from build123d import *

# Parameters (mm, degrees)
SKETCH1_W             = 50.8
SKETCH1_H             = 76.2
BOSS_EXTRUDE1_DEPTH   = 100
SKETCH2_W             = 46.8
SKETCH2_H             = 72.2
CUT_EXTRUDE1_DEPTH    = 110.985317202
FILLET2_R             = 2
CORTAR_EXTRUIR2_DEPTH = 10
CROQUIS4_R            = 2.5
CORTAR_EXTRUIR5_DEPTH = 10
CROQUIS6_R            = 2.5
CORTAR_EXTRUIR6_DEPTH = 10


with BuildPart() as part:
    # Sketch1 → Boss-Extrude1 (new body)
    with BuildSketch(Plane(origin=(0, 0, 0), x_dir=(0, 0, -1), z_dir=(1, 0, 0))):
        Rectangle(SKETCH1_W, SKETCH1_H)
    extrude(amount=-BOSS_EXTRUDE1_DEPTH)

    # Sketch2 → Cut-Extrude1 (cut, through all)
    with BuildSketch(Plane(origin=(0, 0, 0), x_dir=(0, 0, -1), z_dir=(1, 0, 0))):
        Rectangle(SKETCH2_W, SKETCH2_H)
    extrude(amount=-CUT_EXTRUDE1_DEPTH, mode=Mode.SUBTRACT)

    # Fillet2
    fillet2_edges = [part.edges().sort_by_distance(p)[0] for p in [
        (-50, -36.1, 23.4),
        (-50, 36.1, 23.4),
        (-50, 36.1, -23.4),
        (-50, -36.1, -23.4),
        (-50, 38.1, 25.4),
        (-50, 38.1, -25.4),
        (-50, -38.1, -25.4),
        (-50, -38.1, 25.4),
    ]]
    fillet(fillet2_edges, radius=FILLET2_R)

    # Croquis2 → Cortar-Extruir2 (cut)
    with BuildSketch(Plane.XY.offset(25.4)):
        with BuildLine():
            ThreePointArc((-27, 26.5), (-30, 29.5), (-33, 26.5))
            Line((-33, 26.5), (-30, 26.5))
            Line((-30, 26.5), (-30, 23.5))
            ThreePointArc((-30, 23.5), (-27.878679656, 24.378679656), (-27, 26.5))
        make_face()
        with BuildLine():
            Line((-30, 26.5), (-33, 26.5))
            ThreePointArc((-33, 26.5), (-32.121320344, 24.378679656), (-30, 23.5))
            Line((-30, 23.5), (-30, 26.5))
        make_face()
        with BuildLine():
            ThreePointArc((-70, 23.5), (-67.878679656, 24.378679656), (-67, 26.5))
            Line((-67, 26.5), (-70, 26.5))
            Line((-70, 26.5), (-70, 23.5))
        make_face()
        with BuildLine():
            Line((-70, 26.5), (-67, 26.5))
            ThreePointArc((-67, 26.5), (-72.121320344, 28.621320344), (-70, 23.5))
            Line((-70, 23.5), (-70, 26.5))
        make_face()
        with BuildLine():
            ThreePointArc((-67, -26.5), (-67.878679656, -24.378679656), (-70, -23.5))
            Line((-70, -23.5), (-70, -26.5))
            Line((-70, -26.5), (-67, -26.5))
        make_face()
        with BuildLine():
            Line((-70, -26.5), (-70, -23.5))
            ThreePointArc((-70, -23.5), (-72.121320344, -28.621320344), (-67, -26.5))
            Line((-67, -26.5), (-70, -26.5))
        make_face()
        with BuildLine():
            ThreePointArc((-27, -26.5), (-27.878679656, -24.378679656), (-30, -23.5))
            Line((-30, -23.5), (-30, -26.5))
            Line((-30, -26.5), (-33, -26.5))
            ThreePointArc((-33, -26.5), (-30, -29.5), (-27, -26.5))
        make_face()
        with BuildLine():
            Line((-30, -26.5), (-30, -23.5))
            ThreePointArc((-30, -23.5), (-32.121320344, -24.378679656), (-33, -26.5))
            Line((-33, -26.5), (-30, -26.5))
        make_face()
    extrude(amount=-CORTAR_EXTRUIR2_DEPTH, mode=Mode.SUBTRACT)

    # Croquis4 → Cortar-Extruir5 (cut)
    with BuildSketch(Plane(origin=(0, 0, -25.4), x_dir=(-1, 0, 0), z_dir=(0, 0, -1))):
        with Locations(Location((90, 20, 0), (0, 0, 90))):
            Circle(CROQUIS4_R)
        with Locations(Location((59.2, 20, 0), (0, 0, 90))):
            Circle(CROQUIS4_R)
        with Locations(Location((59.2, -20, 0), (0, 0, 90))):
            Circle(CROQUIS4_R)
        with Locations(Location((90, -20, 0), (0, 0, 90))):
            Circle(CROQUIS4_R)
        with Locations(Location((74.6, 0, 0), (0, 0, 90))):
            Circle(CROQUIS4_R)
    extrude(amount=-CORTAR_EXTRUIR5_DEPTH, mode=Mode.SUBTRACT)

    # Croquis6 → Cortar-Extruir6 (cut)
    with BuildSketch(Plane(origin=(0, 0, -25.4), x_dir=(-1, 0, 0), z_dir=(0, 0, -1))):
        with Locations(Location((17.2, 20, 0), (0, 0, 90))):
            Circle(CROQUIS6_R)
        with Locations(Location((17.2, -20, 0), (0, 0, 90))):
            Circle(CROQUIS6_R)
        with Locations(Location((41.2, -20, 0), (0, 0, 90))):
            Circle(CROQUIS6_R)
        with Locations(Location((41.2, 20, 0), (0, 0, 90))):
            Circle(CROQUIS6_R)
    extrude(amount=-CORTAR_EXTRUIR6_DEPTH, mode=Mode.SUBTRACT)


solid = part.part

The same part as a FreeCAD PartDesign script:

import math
import FreeCAD as App
import Part
import Sketcher
from FreeCAD import Vector


def edges_at(feature, points):
    """Names of the edges that pass closest to the given points."""
    edges = feature.Shape.Edges
    near = lambda p: min(range(len(edges)), key=lambda i: edges[i].distToShape(Part.Vertex(*p))[0])
    return sorted({f"Edge{near(p) + 1}" for p in points})

doc = App.newDocument("Part")
params = doc.addObject("Spreadsheet::Sheet", "Params")
for row, (alias, value) in enumerate([
    ("sketch1_width", "76.2 mm"),
    ("sketch1_height", "50.8 mm"),
    ("pad1_length", "100 mm"),
    ("sketch2_width", "72.2 mm"),
    ("sketch2_height", "46.8 mm"),
    ("fillet_radius", "2 mm"),
    ("sketch3_radius", "3 mm"),
    ("pocket2_length", "10 mm"),
    ("sketch4_diameter", "5 mm"),
    ("pocket3_length", "10 mm"),
    ("sketch5_diameter", "5 mm"),
    ("pocket4_length", "10 mm"),
], start=1):
    params.set(f"A{row}", alias)
    params.set(f"B{row}", "=" + value)
    params.setAlias(f"B{row}", alias)

body = doc.addObject("PartDesign::Body", "Body")

sketch1 = body.newObject("Sketcher::SketchObject", "Sketch")
sketch1.AttachmentSupport = (doc.getObject("YZ_Plane"), [""])
sketch1.MapMode = "FlatFace"
sketch1.addGeometry([
    Part.LineSegment(Vector(38, 25, 0), Vector(-38, 25, 0)),
    Part.LineSegment(Vector(-38, 25, 0), Vector(-38, -25, 0)),
    Part.LineSegment(Vector(-38, -25, 0), Vector(38, -25, 0)),
    Part.LineSegment(Vector(38, -25, 0), Vector(38, 25, 0)),
], False)
sketch1.addConstraint([
    Sketcher.Constraint("Coincident", 0, 2, 1, 1),
    Sketcher.Constraint("Coincident", 1, 2, 2, 1),
    Sketcher.Constraint("Coincident", 2, 2, 3, 1),
    Sketcher.Constraint("Coincident", 3, 2, 0, 1),
    Sketcher.Constraint("Horizontal", 0),
    Sketcher.Constraint("Vertical", 1),
    Sketcher.Constraint("Horizontal", 2),
    Sketcher.Constraint("Vertical", 3),
    Sketcher.Constraint("Symmetric", 0, 2, 2, 2, -1, 1),
    Sketcher.Constraint("DistanceX", 0, 2, 0, 1, 76.2),
    Sketcher.Constraint("DistanceY", 1, 2, 1, 1, 50.8),
])
sketch1.setExpression("Constraints[9]", "Params.sketch1_width")
sketch1.setExpression("Constraints[10]", "Params.sketch1_height")
pad1 = body.newObject("PartDesign::Pad", "Pad")
pad1.Profile = sketch1
pad1.setExpression("Length", "Params.pad1_length")
pad1.Reversed = True

sketch2 = body.newObject("Sketcher::SketchObject", "Sketch001")
sketch2.AttachmentSupport = (doc.getObject("YZ_Plane"), [""])
sketch2.MapMode = "FlatFace"
sketch2.addGeometry([
    Part.LineSegment(Vector(36, 23, 0), Vector(-36, 23, 0)),
    Part.LineSegment(Vector(-36, 23, 0), Vector(-36, -23, 0)),
    Part.LineSegment(Vector(-36, -23, 0), Vector(36, -23, 0)),
    Part.LineSegment(Vector(36, -23, 0), Vector(36, 23, 0)),
], False)
sketch2.addConstraint([
    Sketcher.Constraint("Coincident", 0, 2, 1, 1),
    Sketcher.Constraint("Coincident", 1, 2, 2, 1),
    Sketcher.Constraint("Coincident", 2, 2, 3, 1),
    Sketcher.Constraint("Coincident", 3, 2, 0, 1),
    Sketcher.Constraint("Horizontal", 0),
    Sketcher.Constraint("Vertical", 1),
    Sketcher.Constraint("Horizontal", 2),
    Sketcher.Constraint("Vertical", 3),
    Sketcher.Constraint("Symmetric", 0, 2, 2, 2, -1, 1),
    Sketcher.Constraint("DistanceX", 0, 2, 0, 1, 72.2),
    Sketcher.Constraint("DistanceY", 1, 2, 1, 1, 46.8),
])
sketch2.setExpression("Constraints[9]", "Params.sketch2_width")
sketch2.setExpression("Constraints[10]", "Params.sketch2_height")
pocket1 = body.newObject("PartDesign::Pocket", "Pocket")
pocket1.Profile = sketch2
pocket1.Type = "ThroughAll"
doc.recompute()

fillet = body.newObject("PartDesign::Fillet", "Fillet")
fillet.Base = (pocket1, edges_at(pocket1, [
    (-50, -36.1, 23.4),
    (-50, 36.1, 23.4),
    (-50, 36.1, -23.4),
    (-50, -36.1, -23.4),
    (-50, 38.1, 25.4),
    (-50, 38.1, -25.4),
    (-50, -38.1, -25.4),
    (-50, -38.1, 25.4),
]))
fillet.setExpression("Radius", "Params.fillet_radius")

sketch3 = body.newObject("Sketcher::SketchObject", "Sketch002")
sketch3.AttachmentSupport = (doc.getObject("XY_Plane"), [""])
sketch3.MapMode = "FlatFace"
sketch3.AttachmentOffset = App.Placement(Vector(0, 0, 25.4), App.Rotation())
sketch3.addGeometry([
    Part.ArcOfCircle(Part.Circle(Vector(-30, 26.5, 0), Vector(0, 0, 1), 3), math.radians(0), math.radians(180)),
    Part.ArcOfCircle(Part.Circle(Vector(-30, 26.5, 0), Vector(0, 0, 1), 3), math.radians(180), math.radians(270)),
    Part.ArcOfCircle(Part.Circle(Vector(-30, 26.5, 0), Vector(0, 0, 1), 3), math.radians(-90), math.radians(0)),
    Part.ArcOfCircle(Part.Circle(Vector(-70, 26.5, 0), Vector(0, 0, 1), 3), math.radians(-90), math.radians(0)),
    Part.ArcOfCircle(Part.Circle(Vector(-70, 26.5, 0), Vector(0, 0, 1), 3), math.radians(0), math.radians(270)),
    Part.ArcOfCircle(Part.Circle(Vector(-70, -26.5, 0), Vector(0, 0, 1), 3), math.radians(0), math.radians(90)),
    Part.ArcOfCircle(Part.Circle(Vector(-70, -26.5, 0), Vector(0, 0, 1), 3), math.radians(90), math.radians(360)),
    Part.ArcOfCircle(Part.Circle(Vector(-30, -26.5, 0), Vector(0, 0, 1), 3), math.radians(0), math.radians(90)),
    Part.ArcOfCircle(Part.Circle(Vector(-30, -26.5, 0), Vector(0, 0, 1), 3), math.radians(90), math.radians(180)),
    Part.ArcOfCircle(Part.Circle(Vector(-30, -26.5, 0), Vector(0, 0, 1), 3), math.radians(180), math.radians(360)),
], False)
sketch3.addConstraint([
    Sketcher.Constraint("Tangent", 0, 2, 1, 1),
    Sketcher.Constraint("Tangent", 1, 2, 2, 1),
    Sketcher.Constraint("Tangent", 2, 2, 0, 1),
    Sketcher.Constraint("Tangent", 3, 1, 4, 2),
    Sketcher.Constraint("Coincident", 4, 1, 3, 2),
    Sketcher.Constraint("Tangent", 5, 1, 6, 2),
    Sketcher.Constraint("Coincident", 6, 1, 5, 2),
    Sketcher.Constraint("Tangent", 7, 2, 8, 1),
    Sketcher.Constraint("Tangent", 8, 2, 9, 1),
    Sketcher.Constraint("Tangent", 9, 2, 7, 1),
    Sketcher.Constraint("Equal", 2, 3),
    Sketcher.Constraint("Equal", 4, 5),
    Sketcher.Constraint("Equal", 6, 7),
    Sketcher.Constraint("Symmetric", 3, 3, 5, 3, -1),
    Sketcher.Constraint("Symmetric", 0, 3, 7, 3, -1),
    Sketcher.Constraint("Horizontal", 2, 3, 3, 3),
    Sketcher.Constraint("Horizontal", 4, 3, 0, 2),
    Sketcher.Constraint("Horizontal", 0, 2, 2, 2),
    Sketcher.Constraint("Horizontal", 2, 2, 4, 1),
    Sketcher.Constraint("Horizontal", 9, 3, 5, 1),
    Sketcher.Constraint("Horizontal", 5, 1, 8, 2),
    Sketcher.Constraint("Horizontal", 8, 2, 9, 2),
    Sketcher.Constraint("Vertical", 9, 3, 1, 2),
    Sketcher.Constraint("Vertical", 6, 3, 3, 1),
    Sketcher.Constraint("Vertical", 3, 1, 6, 1),
    Sketcher.Constraint("Vertical", 1, 2, 7, 2),
    Sketcher.Constraint("Radius", 0, 3.0),
    Sketcher.Constraint("DistanceX", 0, 3, -1, 1, 30.0),
    Sketcher.Constraint("DistanceX", 3, 3, -1, 1, 70.0),
    Sketcher.Constraint("DistanceY", 5, 3, 3, 3, 53.0),
])
sketch3.setExpression("Constraints[26]", "Params.sketch3_radius")
pocket2 = body.newObject("PartDesign::Pocket", "Pocket001")
pocket2.Profile = sketch3
pocket2.setExpression("Length", "Params.pocket2_length")

sketch4 = body.newObject("Sketcher::SketchObject", "Sketch003")
sketch4.AttachmentSupport = (doc.getObject("XY_Plane"), [""])
sketch4.MapMode = "FlatFace"
sketch4.AttachmentOffset = App.Placement(Vector(0, 0, -25.4), App.Rotation())
sketch4.addGeometry([
    Part.Circle(Vector(-90, 20, 0), Vector(0, 0, 1), 2.5),
    Part.Circle(Vector(-59.2, 20, 0), Vector(0, 0, 1), 2.5),
    Part.Circle(Vector(-59.2, -20, 0), Vector(0, 0, 1), 2.5),
    Part.Circle(Vector(-90, -20, 0), Vector(0, 0, 1), 2.5),
    Part.Circle(Vector(-74.6, 0, 0), Vector(0, 0, 1), 2.5),
], False)
sketch4.addConstraint([
    Sketcher.Constraint("Equal", 0, 1),
    Sketcher.Constraint("Equal", 1, 2),
    Sketcher.Constraint("Equal", 2, 3),
    Sketcher.Constraint("Equal", 3, 4),
    Sketcher.Constraint("Symmetric", 1, 3, 2, 3, -1),
    Sketcher.Constraint("Symmetric", 0, 3, 3, 3, -1),
    Sketcher.Constraint("PointOnObject", 4, 3, -1),
    Sketcher.Constraint("Horizontal", 0, 3, 1, 3),
    Sketcher.Constraint("Diameter", 0, 5.0),
    Sketcher.Constraint("DistanceX", 0, 3, -1, 1, 90.0),
    Sketcher.Constraint("DistanceY", -1, 1, 0, 3, 20.0),
    Sketcher.Constraint("DistanceX", 1, 3, -1, 1, 59.2),
    Sketcher.Constraint("DistanceX", 4, 3, -1, 1, 74.6),
])
sketch4.setExpression("Constraints[8]", "Params.sketch4_diameter")
pocket3 = body.newObject("PartDesign::Pocket", "Pocket002")
pocket3.Profile = sketch4
pocket3.setExpression("Length", "Params.pocket3_length")
pocket3.Reversed = True

sketch5 = body.newObject("Sketcher::SketchObject", "Sketch004")
sketch5.AttachmentSupport = (doc.getObject("XY_Plane"), [""])
sketch5.MapMode = "FlatFace"
sketch5.AttachmentOffset = App.Placement(Vector(0, 0, -25.4), App.Rotation())
sketch5.addGeometry([
    Part.Circle(Vector(-17.2, 20, 0), Vector(0, 0, 1), 2.5),
    Part.Circle(Vector(-17.2, -20, 0), Vector(0, 0, 1), 2.5),
    Part.Circle(Vector(-41.2, -20, 0), Vector(0, 0, 1), 2.5),
    Part.Circle(Vector(-41.2, 20, 0), Vector(0, 0, 1), 2.5),
], False)
sketch5.addConstraint([
    Sketcher.Constraint("Equal", 0, 1),
    Sketcher.Constraint("Equal", 1, 2),
    Sketcher.Constraint("Equal", 2, 3),
    Sketcher.Constraint("Symmetric", 0, 3, 1, 3, -1),
    Sketcher.Constraint("Symmetric", 2, 3, 3, 3, -1),
    Sketcher.Constraint("Horizontal", 1, 3, 2, 3),
    Sketcher.Constraint("Diameter", 0, 5.0),
    Sketcher.Constraint("DistanceY", -1, 1, 0, 3, 20.0),
    Sketcher.Constraint("DistanceX", 2, 3, 1, 3, 24.0),
    Sketcher.Constraint("DistanceX", 0, 3, -1, 1, 17.2),
])
sketch5.setExpression("Constraints[6]", "Params.sketch5_diameter")
pocket4 = body.newObject("PartDesign::Pocket", "Pocket003")
pocket4.Profile = sketch5
pocket4.setExpression("Length", "Params.pocket4_length")
pocket4.Reversed = True

doc.recompute()
